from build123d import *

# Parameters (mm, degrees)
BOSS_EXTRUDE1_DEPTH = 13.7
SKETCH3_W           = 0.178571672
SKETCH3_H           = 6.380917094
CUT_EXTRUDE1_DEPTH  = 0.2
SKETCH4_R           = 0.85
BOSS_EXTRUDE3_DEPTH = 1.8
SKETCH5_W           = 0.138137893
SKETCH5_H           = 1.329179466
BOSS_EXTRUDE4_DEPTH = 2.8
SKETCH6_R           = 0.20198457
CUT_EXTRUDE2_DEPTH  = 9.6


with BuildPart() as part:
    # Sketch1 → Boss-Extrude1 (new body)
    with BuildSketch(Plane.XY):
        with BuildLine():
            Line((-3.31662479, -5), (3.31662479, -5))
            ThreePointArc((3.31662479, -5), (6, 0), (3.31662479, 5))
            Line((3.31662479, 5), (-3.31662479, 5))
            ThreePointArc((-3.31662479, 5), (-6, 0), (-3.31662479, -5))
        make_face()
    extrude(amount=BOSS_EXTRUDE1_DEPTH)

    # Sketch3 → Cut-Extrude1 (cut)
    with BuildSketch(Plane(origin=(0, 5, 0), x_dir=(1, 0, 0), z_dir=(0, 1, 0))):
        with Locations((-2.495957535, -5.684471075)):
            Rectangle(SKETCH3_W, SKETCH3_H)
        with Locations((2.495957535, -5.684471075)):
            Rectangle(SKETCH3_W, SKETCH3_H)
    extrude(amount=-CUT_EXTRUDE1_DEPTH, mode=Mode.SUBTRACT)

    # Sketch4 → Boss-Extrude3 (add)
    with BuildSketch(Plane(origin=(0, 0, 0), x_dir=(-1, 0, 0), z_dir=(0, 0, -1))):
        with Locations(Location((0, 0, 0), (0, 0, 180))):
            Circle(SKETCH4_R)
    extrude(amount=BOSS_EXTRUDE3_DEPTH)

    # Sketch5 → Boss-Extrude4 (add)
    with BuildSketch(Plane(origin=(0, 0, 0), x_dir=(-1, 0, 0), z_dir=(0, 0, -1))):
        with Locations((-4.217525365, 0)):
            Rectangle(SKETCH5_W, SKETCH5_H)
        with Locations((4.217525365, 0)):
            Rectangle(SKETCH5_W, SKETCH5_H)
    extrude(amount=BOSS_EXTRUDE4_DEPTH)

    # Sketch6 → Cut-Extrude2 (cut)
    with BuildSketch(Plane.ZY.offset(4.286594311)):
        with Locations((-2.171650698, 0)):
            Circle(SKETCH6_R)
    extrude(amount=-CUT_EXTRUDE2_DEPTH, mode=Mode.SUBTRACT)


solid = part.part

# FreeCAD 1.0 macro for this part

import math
import FreeCAD as App
import Part
import Sketcher
from FreeCAD import Vector
Q = App.Units.Quantity

doc = App.newDocument("Part")
body = doc.addObject("PartDesign::Body", "Body")

# Sketch on XY plane
sketch1 = body.newObject("Sketcher::SketchObject", "Sketch")
sketch1.AttachmentSupport = (doc.getObject("XY_Plane"), [""])
sketch1.MapMode = "FlatFace"
sketch1.addGeometry(Part.LineSegment(Vector(-3, -5, 0), Vector(3, -5, 0)), False)
sketch1.addGeometry(Part.ArcOfCircle(Part.Circle(Vector(0, 0, 0), Vector(0, 0, 1), 6), math.radians(-56), math.radians(56)), False)
sketch1.addGeometry(Part.LineSegment(Vector(3, 5, 0), Vector(-3, 5, 0)), False)
sketch1.addGeometry(Part.ArcOfCircle(Part.Circle(Vector(0, 0, 0), Vector(0, 0, 1), 6), math.radians(124), math.radians(236)), False)
sketch1.addConstraint(Sketcher.Constraint("Coincident", 0, 2, 1, 1))
sketch1.addConstraint(Sketcher.Constraint("Coincident", 1, 2, 2, 1))
sketch1.addConstraint(Sketcher.Constraint("Coincident", 2, 2, 3, 1))
sketch1.addConstraint(Sketcher.Constraint("Coincident", 3, 2, 0, 1))
sketch1.addConstraint(Sketcher.Constraint("Horizontal", 0))
sketch1.addConstraint(Sketcher.Constraint("Horizontal", 2))
sketch1.addConstraint(Sketcher.Constraint("Coincident", 1, 3, -1, 1))
sketch1.addConstraint(Sketcher.Constraint("Coincident", 3, 3, -1, 1))
sketch1.addConstraint(Sketcher.Constraint("Equal", 1, 3))
sketch1.addConstraint(Sketcher.Constraint("Vertical", 0, 2, 1, 2))
sketch1.addConstraint(Sketcher.Constraint("Radius", 1, Q("6 mm")))
sketch1.addConstraint(Sketcher.Constraint("DistanceY", 0, 2, -1, 1, Q("5 mm")))
pad1 = body.newObject("PartDesign::Pad", "Pad")
pad1.Profile = sketch1
pad1.Length = 13.7

# Sketch on XZ plane
sketch2 = body.newObject("Sketcher::SketchObject", "Sketch001")
sketch2.AttachmentSupport = (doc.getObject("XZ_Plane"), [""])
sketch2.MapMode = "FlatFace"
sketch2.AttachmentOffset = App.Placement(Vector(0, 0, -5), App.Rotation())
sketch2.addGeometry(Part.LineSegment(Vector(-2.59, 2.49, 0), Vector(-2.59, 8.87, 0)), False)
sketch2.addGeometry(Part.LineSegment(Vector(-2.59, 8.87, 0), Vector(-2.41, 8.87, 0)), False)
sketch2.addGeometry(Part.LineSegment(Vector(-2.41, 8.87, 0), Vector(-2.41, 2.49, 0)), False)
sketch2.addGeometry(Part.LineSegment(Vector(-2.41, 2.49, 0), Vector(-2.59, 2.49, 0)), False)
sketch2.addGeometry(Part.LineSegment(Vector(2.41, 2.49, 0), Vector(2.41, 8.87, 0)), False)
sketch2.addGeometry(Part.LineSegment(Vector(2.41, 8.87, 0), Vector(2.59, 8.87, 0)), False)
sketch2.addGeometry(Part.LineSegment(Vector(2.59, 8.87, 0), Vector(2.59, 2.49, 0)), False)
sketch2.addGeometry(Part.LineSegment(Vector(2.59, 2.49, 0), Vector(2.41, 2.49, 0)), False)
sketch2.addConstraint(Sketcher.Constraint("Coincident", 0, 2, 1, 1))
sketch2.addConstraint(Sketcher.Constraint("Coincident", 1, 2, 2, 1))
sketch2.addConstraint(Sketcher.Constraint("Coincident", 2, 2, 3, 1))
sketch2.addConstraint(Sketcher.Constraint("Coincident", 3, 2, 0, 1))
sketch2.addConstraint(Sketcher.Constraint("Coincident", 4, 2, 5, 1))
sketch2.addConstraint(Sketcher.Constraint("Coincident", 5, 2, 6, 1))
sketch2.addConstraint(Sketcher.Constraint("Coincident", 6, 2, 7, 1))
sketch2.addConstraint(Sketcher.Constraint("Coincident", 7, 2, 4, 1))
sketch2.addConstraint(Sketcher.Constraint("Vertical", 0))
sketch2.addConstraint(Sketcher.Constraint("Horizontal", 1))
sketch2.addConstraint(Sketcher.Constraint("Vertical", 2))
sketch2.addConstraint(Sketcher.Constraint("Horizontal", 3))
sketch2.addConstraint(Sketcher.Constraint("Vertical", 4))
sketch2.addConstraint(Sketcher.Constraint("Horizontal", 5))
sketch2.addConstraint(Sketcher.Constraint("Vertical", 6))
sketch2.addConstraint(Sketcher.Constraint("Horizontal", 7))
sketch2.addConstraint(Sketcher.Constraint("Symmetric", 1, 2, 4, 2, -2))
sketch2.addConstraint(Sketcher.Constraint("Symmetric", 3, 2, 6, 2, -2))
sketch2.addConstraint(Sketcher.Constraint("DistanceX", 1, 1, 1, 2, Q("0.178572 mm")))
sketch2.addConstraint(Sketcher.Constraint("DistanceY", 0, 1, 0, 2, Q("6.380917 mm")))
sketch2.addConstraint(Sketcher.Constraint("DistanceY", -1, 1, 0, 2, Q("8.87493 mm")))
sketch2.addConstraint(Sketcher.Constraint("DistanceX", 1, 2, -1, 1, Q("2.406672 mm")))
pocket1 = body.newObject("PartDesign::Pocket", "Pocket")
pocket1.Profile = sketch2
pocket1.Length = 0.2
pocket1.Reversed = True

# Sketch on XY plane
sketch3 = body.newObject("Sketcher::SketchObject", "Sketch002")
sketch3.AttachmentSupport = (doc.getObject("XY_Plane"), [""])
sketch3.MapMode = "FlatFace"
sketch3.addGeometry(Part.Circle(Vector(0, 0, 0), Vector(0, 0, 1), 0.8), False)
sketch3.addConstraint(Sketcher.Constraint("Coincident", 0, 3, -1, 1))
sketch3.addConstraint(Sketcher.Constraint("Diameter", 0, Q("1.7 mm")))
pad2 = body.newObject("PartDesign::Pad", "Pad001")
pad2.Profile = sketch3
pad2.Length = 1.8
pad2.Reversed = True

# Sketch on XY plane
sketch4 = body.newObject("Sketcher::SketchObject", "Sketch003")
sketch4.AttachmentSupport = (doc.getObject("XY_Plane"), [""])
sketch4.MapMode = "FlatFace"
sketch4.addGeometry(Part.LineSegment(Vector(4.29, 0.66, 0), Vector(4.29, -0.66, 0)), False)
sketch4.addGeometry(Part.LineSegment(Vector(4.29, -0.66, 0), Vector(4.15, -0.66, 0)), False)
sketch4.addGeometry(Part.LineSegment(Vector(4.15, -0.66, 0), Vector(4.15, 0.66, 0)), False)
sketch4.addGeometry(Part.LineSegment(Vector(4.15, 0.66, 0), Vector(4.29, 0.66, 0)), False)
sketch4.addGeometry(Part.LineSegment(Vector(-4.15, 0.66, 0), Vector(-4.15, -0.66, 0)), False)
sketch4.addGeometry(Part.LineSegment(Vector(-4.15, -0.66, 0), Vector(-4.29, -0.66, 0)), False)
sketch4.addGeometry(Part.LineSegment(Vector(-4.29, -0.66, 0), Vector(-4.29, 0.66, 0)), False)
sketch4.addGeometry(Part.LineSegment(Vector(-4.29, 0.66, 0), Vector(-4.15, 0.66, 0)), False)
sketch4.addConstraint(Sketcher.Constraint("Coincident", 0, 2, 1, 1))
sketch4.addConstraint(Sketcher.Constraint("Coincident", 1, 2, 2, 1))
sketch4.addConstraint(Sketcher.Constraint("Coincident", 2, 2, 3, 1))
sketch4.addConstraint(Sketcher.Constraint("Coincident", 3, 2, 0, 1))
sketch4.addConstraint(Sketcher.Constraint("Coincident", 4, 2, 5, 1))
sketch4.addConstraint(Sketcher.Constraint("Coincident", 5, 2, 6, 1))
sketch4.addConstraint(Sketcher.Constraint("Coincident", 6, 2, 7, 1))
sketch4.addConstraint(Sketcher.Constraint("Coincident", 7, 2, 4, 1))
sketch4.addConstraint(Sketcher.Constraint("Vertical", 0))
sketch4.addConstraint(Sketcher.Constraint("Horizontal", 1))
sketch4.addConstraint(Sketcher.Constraint("Vertical", 2))
sketch4.addConstraint(Sketcher.Constraint("Horizontal", 3))
sketch4.addConstraint(Sketcher.Constraint("Vertical", 4))
sketch4.addConstraint(Sketcher.Constraint("Horizontal", 5))
sketch4.addConstraint(Sketcher.Constraint("Vertical", 6))
sketch4.addConstraint(Sketcher.Constraint("Horizontal", 7))
sketch4.addConstraint(Sketcher.Constraint("Symmetric", 2, 2, 4, 2, -1, 1))
sketch4.addConstraint(Sketcher.Constraint("Symmetric", 0, 2, 6, 2, -1, 1))
sketch4.addConstraint(Sketcher.Constraint("Horizontal", 1, 2, 4, 2))
sketch4.addConstraint(Sketcher.Constraint("DistanceY", 0, 2, 0, 1, Q("1.329179 mm")))
sketch4.addConstraint(Sketcher.Constraint("DistanceX", 1, 2, 1, 1, Q("0.138138 mm")))
sketch4.addConstraint(Sketcher.Constraint("DistanceX", 4, 2, 0, 2, Q("8.435051 mm")))
pad3 = body.newObject("PartDesign::Pad", "Pad002")
pad3.Profile = sketch4
pad3.Length = 2.8
pad3.Reversed = True

# Sketch on YZ plane
sketch5 = body.newObject("Sketcher::SketchObject", "Sketch004")
sketch5.AttachmentSupport = (doc.getObject("YZ_Plane"), [""])
sketch5.MapMode = "FlatFace"
sketch5.AttachmentOffset = App.Placement(Vector(0, 0, -4.286594), App.Rotation())
sketch5.addGeometry(Part.Circle(Vector(0, -2.17, 0), Vector(0, 0, 1), 0.2), False)
sketch5.addConstraint(Sketcher.Constraint("PointOnObject", 0, 3, -2))
sketch5.addConstraint(Sketcher.Constraint("Diameter", 0, Q("0.403969 mm")))
sketch5.addConstraint(Sketcher.Constraint("DistanceY", 0, 3, -1, 1, Q("2.171651 mm")))
pocket2 = body.newObject("PartDesign::Pocket", "Pocket001")
pocket2.Profile = sketch5
pocket2.Length = 9.6
pocket2.Reversed = True

doc.recompute()
